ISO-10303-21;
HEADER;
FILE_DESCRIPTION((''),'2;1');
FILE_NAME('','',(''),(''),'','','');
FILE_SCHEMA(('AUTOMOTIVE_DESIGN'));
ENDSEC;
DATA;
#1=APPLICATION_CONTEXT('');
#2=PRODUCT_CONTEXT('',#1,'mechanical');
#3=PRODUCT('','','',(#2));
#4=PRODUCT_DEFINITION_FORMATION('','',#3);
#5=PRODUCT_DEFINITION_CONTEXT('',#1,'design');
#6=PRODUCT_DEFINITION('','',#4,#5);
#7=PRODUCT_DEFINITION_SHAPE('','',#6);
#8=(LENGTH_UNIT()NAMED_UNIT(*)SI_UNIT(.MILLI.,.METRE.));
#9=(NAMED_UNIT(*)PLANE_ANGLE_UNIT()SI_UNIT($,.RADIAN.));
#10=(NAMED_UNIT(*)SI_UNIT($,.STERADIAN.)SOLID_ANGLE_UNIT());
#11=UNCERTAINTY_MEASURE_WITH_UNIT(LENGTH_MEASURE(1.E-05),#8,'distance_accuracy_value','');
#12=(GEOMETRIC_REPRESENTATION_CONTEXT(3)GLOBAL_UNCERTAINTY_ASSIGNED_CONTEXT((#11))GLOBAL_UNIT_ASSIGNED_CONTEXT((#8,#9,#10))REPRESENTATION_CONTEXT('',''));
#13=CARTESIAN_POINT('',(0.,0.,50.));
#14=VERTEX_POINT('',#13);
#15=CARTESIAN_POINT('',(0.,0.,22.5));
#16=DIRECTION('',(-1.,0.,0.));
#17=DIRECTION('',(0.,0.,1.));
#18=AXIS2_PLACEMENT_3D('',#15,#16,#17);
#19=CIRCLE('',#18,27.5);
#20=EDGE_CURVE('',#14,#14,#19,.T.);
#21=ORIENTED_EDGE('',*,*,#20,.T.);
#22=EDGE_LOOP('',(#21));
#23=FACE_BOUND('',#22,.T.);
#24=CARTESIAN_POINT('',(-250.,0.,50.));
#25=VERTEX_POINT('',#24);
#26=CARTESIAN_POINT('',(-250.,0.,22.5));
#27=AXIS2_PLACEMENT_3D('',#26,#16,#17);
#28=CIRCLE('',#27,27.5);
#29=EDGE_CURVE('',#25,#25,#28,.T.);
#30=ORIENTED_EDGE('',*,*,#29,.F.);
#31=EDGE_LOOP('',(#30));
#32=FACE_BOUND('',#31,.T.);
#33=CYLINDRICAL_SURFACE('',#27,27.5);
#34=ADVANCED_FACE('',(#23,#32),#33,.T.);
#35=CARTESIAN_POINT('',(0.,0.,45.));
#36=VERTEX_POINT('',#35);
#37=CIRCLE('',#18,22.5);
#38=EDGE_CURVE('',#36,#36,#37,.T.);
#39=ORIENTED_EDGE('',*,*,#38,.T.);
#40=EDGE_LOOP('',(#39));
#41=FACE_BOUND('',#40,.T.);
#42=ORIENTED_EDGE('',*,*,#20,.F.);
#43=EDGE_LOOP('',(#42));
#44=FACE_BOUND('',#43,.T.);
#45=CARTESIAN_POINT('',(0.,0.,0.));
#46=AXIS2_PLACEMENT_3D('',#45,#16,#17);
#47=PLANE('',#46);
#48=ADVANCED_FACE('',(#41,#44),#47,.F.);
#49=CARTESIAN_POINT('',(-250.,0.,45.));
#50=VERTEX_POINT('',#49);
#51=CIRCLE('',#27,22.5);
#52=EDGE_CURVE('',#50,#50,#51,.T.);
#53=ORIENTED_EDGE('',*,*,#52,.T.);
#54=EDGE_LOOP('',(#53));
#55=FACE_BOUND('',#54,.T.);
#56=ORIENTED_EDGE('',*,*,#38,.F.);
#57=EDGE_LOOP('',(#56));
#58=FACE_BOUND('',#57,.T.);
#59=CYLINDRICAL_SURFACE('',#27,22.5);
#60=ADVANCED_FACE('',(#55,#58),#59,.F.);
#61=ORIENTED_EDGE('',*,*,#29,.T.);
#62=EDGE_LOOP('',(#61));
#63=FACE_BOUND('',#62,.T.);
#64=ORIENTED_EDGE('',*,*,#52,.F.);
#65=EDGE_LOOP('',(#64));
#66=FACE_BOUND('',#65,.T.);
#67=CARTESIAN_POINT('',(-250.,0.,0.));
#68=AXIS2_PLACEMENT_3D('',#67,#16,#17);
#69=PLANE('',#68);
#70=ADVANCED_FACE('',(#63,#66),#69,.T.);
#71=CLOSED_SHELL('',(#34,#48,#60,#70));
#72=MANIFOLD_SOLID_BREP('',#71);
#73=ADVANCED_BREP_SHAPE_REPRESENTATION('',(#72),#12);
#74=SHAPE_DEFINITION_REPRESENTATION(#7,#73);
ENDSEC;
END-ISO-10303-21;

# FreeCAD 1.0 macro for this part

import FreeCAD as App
import Part
import Sketcher

V = App.Vector

doc = App.newDocument("Part")
body = doc.addObject("PartDesign::Body", "Body")

# Sketch on XZ plane
sketch1 = body.newObject("Sketcher::SketchObject", "Sketch")
sketch1.AttachmentSupport = (doc.getObject("XZ_Plane"), [""])
sketch1.MapMode = "FlatFace"
sketch1.addGeometry([
    Part.LineSegment(V(-250, -5, 0), V(-250, 0, 0)),
    Part.LineSegment(V(-250, 0, 0), V(0, 0, 0)),
    Part.LineSegment(V(0, 0, 0), V(0, -5, 0)),
    Part.LineSegment(V(0, -5, 0), V(-250, -5, 0)),
], False)
sketch1.addGeometry(Part.LineSegment(V(-250, 22, 0), V(0, 22, 0)), True)  # axis
sketch1.addConstraint([
    Sketcher.Constraint("Coincident", 0, 2, 1, 1),
    Sketcher.Constraint("Coincident", 1, 2, 2, 1),
    Sketcher.Constraint("Coincident", 2, 2, 3, 1),
    Sketcher.Constraint("Coincident", 3, 2, 0, 1),
    Sketcher.Constraint("Vertical", 0),
    Sketcher.Constraint("Horizontal", 1),
    Sketcher.Constraint("Vertical", 2),
    Sketcher.Constraint("Horizontal", 3),
    Sketcher.Constraint("Horizontal", 4),
    Sketcher.Constraint("Coincident", 1, 2, -1, 1),
    Sketcher.Constraint("PointOnObject", 4, 2, -2),
    Sketcher.Constraint("Vertical", 3, 2, 4, 1),
    Sketcher.Constraint("DistanceX", 1, 1, 1, 2, 250.0),
    Sketcher.Constraint("DistanceY", 0, 1, 0, 2, 5.0),
    Sketcher.Constraint("DistanceY", -1, 1, 4, 1, 22.5),
])
revolution = body.newObject("PartDesign::Revolution", "Revolution")
revolution.Profile = sketch1
revolution.ReferenceAxis = (sketch1, ["Axis0"])
revolution.Angle = 360

doc.recompute()
